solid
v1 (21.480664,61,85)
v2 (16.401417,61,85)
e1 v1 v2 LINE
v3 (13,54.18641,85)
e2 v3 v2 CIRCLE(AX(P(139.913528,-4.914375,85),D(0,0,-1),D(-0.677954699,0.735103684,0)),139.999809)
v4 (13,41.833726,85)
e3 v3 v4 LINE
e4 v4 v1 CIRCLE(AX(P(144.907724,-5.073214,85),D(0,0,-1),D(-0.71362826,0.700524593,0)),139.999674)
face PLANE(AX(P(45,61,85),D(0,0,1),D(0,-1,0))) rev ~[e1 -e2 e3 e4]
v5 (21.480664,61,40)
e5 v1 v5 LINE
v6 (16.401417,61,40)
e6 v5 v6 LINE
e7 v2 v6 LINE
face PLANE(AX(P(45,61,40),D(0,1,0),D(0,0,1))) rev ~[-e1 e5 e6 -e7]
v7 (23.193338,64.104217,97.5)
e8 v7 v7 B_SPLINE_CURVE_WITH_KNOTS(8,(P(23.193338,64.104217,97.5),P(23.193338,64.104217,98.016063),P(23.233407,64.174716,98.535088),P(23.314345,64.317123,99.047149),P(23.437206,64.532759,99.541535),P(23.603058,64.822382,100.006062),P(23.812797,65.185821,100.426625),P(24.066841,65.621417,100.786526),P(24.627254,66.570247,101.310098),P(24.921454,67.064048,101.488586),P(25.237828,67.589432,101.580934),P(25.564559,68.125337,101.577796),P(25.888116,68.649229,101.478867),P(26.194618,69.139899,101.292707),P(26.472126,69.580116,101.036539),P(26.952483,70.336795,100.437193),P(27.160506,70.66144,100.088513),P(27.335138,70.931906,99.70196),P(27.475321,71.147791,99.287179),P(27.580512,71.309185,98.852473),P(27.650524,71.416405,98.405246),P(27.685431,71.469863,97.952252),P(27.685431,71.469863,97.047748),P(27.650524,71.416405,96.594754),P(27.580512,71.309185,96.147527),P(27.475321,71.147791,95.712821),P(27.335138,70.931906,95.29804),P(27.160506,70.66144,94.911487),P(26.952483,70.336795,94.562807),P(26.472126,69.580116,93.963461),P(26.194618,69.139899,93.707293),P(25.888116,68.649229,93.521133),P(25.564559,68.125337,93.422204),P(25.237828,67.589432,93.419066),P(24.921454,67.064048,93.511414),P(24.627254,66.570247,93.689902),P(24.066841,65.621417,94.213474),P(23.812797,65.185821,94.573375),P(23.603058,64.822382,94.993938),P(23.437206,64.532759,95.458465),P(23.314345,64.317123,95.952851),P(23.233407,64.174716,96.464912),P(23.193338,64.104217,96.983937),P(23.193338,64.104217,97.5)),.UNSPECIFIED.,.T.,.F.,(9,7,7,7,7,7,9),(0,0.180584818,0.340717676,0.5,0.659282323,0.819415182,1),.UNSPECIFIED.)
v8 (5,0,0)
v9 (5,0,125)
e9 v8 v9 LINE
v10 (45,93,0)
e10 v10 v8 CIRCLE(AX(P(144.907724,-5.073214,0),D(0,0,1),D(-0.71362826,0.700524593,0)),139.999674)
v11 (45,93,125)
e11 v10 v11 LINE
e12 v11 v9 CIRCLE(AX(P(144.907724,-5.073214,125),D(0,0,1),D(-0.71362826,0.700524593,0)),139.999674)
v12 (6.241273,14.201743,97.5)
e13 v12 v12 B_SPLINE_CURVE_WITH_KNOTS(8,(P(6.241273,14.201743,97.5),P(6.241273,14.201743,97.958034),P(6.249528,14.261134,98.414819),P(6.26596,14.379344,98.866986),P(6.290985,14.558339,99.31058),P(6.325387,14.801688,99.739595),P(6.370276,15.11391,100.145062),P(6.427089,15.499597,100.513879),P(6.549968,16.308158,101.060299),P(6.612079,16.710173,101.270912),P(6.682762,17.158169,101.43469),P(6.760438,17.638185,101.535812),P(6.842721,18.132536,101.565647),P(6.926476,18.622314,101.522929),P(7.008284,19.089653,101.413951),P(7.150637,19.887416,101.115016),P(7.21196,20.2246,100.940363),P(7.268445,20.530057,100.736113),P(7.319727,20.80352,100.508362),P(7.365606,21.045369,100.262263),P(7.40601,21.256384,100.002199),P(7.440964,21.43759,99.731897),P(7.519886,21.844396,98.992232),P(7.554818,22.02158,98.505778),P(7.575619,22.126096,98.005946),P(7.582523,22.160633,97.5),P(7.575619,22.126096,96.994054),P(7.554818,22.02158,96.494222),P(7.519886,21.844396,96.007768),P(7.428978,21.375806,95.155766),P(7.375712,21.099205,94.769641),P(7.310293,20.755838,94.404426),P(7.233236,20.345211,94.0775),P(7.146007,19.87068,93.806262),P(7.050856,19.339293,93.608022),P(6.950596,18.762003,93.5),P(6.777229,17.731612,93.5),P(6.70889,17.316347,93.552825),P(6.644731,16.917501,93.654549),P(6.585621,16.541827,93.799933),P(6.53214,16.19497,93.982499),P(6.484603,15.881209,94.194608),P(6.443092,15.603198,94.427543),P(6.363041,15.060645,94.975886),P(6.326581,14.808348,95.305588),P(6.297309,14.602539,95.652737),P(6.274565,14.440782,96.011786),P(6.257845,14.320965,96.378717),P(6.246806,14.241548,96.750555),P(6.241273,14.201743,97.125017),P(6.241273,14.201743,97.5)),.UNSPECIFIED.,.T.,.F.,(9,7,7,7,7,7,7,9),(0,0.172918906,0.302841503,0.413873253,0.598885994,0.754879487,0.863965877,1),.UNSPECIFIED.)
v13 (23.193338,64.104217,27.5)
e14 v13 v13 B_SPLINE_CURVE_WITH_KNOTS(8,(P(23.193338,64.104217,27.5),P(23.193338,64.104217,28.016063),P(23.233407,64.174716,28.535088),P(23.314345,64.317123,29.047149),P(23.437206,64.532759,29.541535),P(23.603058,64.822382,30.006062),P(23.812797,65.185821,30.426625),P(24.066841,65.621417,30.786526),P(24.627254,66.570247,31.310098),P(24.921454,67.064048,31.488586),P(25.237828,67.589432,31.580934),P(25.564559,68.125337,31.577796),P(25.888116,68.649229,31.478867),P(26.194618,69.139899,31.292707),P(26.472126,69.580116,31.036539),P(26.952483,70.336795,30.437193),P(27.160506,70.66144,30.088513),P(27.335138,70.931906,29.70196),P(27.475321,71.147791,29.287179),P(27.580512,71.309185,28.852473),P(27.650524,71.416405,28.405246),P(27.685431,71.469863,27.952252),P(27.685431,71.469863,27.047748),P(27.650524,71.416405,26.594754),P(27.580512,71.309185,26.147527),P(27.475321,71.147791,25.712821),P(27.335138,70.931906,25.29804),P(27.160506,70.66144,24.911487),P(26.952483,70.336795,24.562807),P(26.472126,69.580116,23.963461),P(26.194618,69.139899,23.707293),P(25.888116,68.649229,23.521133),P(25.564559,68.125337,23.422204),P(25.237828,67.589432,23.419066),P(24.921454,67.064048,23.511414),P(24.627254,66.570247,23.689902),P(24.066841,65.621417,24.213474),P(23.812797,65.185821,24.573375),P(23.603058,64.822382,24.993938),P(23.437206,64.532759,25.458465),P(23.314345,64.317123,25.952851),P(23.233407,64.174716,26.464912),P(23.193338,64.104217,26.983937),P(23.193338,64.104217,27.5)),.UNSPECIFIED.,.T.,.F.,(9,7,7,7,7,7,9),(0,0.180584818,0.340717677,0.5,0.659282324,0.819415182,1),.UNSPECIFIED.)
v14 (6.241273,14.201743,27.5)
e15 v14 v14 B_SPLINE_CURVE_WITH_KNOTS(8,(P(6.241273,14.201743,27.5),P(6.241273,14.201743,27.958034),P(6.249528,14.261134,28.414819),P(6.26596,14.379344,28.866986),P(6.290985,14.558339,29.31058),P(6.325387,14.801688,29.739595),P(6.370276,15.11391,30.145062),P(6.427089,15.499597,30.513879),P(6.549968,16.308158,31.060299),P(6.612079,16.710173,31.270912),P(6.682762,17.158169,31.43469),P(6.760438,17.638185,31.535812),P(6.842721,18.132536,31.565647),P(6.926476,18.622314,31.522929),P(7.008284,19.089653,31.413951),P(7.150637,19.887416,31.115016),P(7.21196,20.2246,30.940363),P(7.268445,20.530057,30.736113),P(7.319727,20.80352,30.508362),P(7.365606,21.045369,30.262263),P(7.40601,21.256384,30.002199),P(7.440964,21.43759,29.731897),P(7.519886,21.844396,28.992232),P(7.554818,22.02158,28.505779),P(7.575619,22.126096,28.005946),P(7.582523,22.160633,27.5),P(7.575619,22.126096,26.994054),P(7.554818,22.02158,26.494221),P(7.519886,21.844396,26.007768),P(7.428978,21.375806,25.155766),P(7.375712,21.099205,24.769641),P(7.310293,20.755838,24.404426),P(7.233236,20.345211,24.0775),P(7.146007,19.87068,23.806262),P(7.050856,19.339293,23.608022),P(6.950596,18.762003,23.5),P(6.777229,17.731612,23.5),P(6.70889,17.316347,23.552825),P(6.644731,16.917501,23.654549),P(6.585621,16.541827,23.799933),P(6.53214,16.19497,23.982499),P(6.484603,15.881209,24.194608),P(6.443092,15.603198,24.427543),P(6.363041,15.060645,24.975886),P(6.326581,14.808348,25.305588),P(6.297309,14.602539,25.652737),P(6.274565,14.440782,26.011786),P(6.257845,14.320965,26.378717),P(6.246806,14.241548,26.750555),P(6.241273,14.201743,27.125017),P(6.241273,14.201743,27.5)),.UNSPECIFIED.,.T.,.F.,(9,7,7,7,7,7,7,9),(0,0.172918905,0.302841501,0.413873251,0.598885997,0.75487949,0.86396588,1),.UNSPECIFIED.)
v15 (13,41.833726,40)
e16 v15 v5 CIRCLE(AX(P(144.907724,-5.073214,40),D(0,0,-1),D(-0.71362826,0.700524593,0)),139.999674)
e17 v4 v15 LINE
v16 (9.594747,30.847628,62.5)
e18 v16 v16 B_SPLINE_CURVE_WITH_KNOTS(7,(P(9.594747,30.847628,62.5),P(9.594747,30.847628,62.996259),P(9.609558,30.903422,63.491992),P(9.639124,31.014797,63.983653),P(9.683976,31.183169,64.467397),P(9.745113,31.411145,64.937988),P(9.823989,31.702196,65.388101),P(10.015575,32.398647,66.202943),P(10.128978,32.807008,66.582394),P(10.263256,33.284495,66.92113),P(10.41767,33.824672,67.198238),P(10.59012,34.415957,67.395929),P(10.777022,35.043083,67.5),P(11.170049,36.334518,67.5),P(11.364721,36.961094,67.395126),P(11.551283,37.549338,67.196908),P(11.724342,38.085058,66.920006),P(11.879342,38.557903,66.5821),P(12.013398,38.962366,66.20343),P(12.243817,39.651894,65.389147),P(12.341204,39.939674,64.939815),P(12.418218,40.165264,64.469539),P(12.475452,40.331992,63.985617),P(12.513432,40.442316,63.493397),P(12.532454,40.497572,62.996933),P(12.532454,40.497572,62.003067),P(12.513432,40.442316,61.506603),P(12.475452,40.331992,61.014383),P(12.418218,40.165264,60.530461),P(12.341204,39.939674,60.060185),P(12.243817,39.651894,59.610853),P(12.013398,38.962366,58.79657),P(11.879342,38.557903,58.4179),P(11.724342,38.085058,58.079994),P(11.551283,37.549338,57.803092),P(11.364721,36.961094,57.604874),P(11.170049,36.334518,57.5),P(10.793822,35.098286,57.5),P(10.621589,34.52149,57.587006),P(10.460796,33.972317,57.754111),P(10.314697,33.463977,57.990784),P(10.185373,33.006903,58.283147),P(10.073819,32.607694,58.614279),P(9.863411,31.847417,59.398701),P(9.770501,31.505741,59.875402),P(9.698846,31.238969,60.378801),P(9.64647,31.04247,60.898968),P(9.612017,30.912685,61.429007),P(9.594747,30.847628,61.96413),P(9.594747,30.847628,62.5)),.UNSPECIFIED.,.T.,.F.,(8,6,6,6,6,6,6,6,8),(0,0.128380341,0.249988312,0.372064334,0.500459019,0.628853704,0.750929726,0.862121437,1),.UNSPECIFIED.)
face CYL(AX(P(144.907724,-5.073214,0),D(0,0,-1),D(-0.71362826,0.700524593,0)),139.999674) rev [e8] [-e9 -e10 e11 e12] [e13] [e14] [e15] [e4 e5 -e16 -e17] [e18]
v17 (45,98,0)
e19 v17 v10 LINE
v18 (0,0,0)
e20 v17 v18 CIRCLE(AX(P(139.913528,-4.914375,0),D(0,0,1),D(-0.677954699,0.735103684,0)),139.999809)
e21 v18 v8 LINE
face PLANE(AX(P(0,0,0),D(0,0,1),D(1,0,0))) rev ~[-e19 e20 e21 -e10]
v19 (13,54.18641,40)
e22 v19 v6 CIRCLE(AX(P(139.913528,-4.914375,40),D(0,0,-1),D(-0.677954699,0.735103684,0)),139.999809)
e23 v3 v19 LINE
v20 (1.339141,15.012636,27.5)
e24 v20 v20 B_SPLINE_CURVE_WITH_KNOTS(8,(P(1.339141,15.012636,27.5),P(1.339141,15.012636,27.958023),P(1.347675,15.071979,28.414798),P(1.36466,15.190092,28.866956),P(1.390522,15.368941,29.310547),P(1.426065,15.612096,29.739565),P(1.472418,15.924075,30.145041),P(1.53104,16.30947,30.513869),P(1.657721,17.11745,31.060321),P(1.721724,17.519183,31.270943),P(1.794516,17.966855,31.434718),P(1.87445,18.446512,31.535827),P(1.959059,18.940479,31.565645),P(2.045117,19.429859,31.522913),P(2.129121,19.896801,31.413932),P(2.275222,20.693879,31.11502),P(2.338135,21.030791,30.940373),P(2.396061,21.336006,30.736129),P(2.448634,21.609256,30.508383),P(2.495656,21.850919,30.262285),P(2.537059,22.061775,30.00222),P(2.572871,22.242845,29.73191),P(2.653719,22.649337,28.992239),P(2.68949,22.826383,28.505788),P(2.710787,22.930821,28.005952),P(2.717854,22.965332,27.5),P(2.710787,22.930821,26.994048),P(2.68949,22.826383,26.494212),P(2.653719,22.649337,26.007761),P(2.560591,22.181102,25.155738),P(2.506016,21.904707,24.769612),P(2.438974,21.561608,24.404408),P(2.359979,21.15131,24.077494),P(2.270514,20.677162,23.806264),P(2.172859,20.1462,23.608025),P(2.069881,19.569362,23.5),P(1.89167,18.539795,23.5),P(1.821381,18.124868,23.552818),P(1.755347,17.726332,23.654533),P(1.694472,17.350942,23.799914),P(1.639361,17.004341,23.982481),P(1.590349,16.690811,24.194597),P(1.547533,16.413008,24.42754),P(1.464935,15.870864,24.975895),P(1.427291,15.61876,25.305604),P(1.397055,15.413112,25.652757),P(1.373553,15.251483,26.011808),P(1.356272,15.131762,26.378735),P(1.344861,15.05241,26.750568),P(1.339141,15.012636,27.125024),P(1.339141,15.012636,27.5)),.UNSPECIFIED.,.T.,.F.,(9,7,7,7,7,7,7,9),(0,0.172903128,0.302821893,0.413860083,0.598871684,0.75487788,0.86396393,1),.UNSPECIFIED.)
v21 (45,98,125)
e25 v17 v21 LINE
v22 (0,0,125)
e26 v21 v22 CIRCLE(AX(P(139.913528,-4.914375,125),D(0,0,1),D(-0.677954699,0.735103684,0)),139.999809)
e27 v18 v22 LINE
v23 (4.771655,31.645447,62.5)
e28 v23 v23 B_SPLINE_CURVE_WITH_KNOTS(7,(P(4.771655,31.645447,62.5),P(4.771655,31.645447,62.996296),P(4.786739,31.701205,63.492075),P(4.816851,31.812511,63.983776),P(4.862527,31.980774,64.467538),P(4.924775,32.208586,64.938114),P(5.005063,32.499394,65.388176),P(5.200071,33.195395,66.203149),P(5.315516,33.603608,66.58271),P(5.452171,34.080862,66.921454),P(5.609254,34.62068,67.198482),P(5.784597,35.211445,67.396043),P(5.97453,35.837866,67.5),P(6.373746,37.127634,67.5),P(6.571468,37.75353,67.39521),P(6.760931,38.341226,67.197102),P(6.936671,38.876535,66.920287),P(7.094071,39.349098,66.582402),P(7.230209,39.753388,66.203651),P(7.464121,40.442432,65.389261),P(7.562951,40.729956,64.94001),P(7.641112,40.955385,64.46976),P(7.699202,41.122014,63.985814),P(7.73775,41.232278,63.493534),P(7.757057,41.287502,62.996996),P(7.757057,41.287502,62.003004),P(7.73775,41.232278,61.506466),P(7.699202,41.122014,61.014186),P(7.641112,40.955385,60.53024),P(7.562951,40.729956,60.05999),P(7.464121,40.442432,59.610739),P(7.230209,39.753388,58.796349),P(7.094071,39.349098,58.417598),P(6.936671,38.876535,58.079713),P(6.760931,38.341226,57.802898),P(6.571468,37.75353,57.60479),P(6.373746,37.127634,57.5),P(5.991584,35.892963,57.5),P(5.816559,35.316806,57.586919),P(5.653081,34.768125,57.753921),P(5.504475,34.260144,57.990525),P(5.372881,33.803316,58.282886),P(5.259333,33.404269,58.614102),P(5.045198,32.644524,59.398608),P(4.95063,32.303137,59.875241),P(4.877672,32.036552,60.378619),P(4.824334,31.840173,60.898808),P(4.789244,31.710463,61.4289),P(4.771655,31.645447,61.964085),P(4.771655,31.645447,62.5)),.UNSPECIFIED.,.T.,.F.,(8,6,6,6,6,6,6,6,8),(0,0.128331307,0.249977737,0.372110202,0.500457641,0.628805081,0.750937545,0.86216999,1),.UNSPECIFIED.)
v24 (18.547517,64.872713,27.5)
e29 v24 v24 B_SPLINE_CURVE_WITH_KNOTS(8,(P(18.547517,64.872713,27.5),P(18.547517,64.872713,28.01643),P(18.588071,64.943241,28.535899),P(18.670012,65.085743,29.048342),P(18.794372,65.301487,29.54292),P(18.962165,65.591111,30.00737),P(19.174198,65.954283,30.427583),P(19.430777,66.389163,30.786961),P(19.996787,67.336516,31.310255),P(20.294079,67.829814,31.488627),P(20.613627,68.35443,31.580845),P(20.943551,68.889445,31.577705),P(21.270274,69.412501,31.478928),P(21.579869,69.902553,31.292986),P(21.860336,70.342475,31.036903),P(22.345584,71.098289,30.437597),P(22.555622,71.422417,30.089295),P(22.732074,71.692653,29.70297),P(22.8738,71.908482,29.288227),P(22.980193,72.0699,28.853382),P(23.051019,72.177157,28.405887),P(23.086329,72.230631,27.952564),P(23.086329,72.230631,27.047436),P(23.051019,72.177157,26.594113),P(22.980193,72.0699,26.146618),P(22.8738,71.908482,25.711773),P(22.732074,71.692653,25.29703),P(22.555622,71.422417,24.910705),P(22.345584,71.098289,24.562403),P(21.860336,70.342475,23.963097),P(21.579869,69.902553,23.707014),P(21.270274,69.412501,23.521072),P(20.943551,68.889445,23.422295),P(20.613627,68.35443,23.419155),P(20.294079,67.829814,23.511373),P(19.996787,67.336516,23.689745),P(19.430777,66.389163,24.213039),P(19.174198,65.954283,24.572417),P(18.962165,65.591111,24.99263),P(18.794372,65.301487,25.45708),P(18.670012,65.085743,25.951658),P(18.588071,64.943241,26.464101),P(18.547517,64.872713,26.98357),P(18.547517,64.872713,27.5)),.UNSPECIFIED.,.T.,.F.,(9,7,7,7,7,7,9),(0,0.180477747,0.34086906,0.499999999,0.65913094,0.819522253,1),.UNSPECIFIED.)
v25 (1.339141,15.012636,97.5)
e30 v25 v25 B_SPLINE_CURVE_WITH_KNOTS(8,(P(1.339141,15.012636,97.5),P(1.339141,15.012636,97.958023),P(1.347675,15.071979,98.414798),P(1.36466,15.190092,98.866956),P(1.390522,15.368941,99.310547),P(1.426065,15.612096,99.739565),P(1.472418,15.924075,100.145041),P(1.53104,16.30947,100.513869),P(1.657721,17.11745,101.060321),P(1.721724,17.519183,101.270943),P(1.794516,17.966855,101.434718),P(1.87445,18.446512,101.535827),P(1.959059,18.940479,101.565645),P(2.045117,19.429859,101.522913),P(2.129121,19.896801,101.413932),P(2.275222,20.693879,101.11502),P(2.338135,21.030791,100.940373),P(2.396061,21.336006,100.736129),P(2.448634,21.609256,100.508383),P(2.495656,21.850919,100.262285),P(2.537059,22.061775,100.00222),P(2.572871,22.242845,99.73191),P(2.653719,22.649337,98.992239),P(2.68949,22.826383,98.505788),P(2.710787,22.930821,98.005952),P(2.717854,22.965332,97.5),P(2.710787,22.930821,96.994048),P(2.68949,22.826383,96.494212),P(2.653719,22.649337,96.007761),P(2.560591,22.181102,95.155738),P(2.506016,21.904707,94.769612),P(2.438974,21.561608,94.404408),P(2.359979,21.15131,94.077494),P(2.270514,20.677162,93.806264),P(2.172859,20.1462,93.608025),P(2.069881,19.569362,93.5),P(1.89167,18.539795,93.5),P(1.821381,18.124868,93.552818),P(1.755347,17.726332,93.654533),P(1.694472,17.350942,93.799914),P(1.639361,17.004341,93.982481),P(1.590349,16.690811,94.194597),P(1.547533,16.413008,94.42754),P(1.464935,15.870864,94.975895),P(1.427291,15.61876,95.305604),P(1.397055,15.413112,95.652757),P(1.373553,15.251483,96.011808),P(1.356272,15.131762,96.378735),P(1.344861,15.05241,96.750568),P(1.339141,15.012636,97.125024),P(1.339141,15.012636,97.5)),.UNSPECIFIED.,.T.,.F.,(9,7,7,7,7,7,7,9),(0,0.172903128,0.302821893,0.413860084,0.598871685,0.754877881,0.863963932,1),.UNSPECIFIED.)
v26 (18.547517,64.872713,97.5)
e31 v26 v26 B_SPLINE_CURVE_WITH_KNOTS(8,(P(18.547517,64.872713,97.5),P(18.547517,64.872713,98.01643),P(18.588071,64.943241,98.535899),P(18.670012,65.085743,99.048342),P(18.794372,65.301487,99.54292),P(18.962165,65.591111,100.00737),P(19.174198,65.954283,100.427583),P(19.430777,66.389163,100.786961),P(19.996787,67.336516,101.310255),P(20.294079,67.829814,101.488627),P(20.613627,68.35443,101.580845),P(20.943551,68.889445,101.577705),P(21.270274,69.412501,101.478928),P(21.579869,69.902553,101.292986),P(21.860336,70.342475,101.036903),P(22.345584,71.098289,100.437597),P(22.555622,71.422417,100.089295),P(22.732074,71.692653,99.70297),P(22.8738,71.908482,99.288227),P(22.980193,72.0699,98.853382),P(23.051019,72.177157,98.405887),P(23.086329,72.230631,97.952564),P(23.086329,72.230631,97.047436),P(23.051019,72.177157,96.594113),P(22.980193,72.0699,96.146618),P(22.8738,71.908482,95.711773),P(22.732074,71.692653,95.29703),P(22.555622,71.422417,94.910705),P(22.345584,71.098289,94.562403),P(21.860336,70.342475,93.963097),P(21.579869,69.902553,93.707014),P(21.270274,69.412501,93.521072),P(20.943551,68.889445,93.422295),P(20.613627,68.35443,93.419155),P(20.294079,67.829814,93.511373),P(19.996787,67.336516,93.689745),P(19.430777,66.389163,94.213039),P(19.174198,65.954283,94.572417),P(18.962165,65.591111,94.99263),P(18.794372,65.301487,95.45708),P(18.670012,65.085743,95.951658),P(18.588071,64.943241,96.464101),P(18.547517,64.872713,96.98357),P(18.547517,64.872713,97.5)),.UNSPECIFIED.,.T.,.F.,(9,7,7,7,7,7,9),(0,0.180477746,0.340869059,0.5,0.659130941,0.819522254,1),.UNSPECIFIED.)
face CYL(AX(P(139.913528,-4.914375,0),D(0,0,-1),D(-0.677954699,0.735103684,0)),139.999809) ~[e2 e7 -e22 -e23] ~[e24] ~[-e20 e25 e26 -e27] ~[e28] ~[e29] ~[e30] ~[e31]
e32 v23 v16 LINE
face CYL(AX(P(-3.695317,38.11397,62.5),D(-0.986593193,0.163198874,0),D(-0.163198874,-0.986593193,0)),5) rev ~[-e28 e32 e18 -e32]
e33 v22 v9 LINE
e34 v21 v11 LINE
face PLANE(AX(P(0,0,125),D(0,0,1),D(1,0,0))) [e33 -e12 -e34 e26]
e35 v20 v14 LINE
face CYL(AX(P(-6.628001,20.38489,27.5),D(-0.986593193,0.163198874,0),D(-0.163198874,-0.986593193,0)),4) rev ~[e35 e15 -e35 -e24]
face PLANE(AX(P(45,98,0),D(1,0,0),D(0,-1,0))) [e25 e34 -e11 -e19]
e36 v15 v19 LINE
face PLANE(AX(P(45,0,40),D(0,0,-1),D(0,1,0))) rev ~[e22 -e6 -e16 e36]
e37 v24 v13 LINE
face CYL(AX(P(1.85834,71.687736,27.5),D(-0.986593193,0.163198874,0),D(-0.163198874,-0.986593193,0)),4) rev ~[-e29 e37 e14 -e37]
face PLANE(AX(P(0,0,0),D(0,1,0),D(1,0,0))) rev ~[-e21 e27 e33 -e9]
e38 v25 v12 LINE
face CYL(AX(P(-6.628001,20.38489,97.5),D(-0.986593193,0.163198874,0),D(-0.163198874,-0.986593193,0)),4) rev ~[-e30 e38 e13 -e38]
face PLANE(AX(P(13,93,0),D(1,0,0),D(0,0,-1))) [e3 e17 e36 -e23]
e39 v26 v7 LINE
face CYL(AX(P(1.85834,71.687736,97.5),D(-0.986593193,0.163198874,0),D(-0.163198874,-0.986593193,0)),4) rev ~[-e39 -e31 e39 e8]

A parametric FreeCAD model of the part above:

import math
import FreeCAD as App
import Part
import Sketcher

V = App.Vector
Q = App.Units.Quantity

doc = App.newDocument("Part")
params = doc.addObject("Spreadsheet::Sheet", "Params")
for row, (alias, value) in enumerate([
    ("sketch1_radius", "140 mm"),
    ("sketch1_width", "5 mm"),
    ("pad1_length", "125 mm"),
    ("sketch2_diameter", "8 mm"),
    ("sketch3_diameter", "10 mm"),
    ("sketch4_height", "45 mm"),
    ("sketch4_width", "61 mm"),
    ("pocket3_length", "32 mm"),
], start=1):
    params.set(f"A{row}", alias)
    params.set(f"B{row}", "=" + value)
    params.setAlias(f"B{row}", alias)

body = doc.addObject("PartDesign::Body", "Body")

sketch1 = body.newObject("Sketcher::SketchObject", "Sketch")
sketch1.AttachmentSupport = (doc.getObject("XY_Plane"), [""])
sketch1.MapMode = "FlatFace"
sketch1.addGeometry([
    Part.LineSegment(V(45, 93, 0), V(45, 98, 0)),
    Part.ArcOfCircle(Part.Circle(V(139.9137, -4.9145, 0), V(0, 0, 1), 140.000017), math.radians(132.684039), math.radians(177.9883)),
    Part.LineSegment(V(0, 0, 0), V(5, 0, 0)),
    Part.ArcOfCircle(Part.Circle(V(144.908, -5.0734, 0), V(0, 0, 1), 140.000001), math.radians(135.530918), math.radians(177.923227)),
], False)
sketch1.addConstraint([
    Sketcher.Constraint("Coincident", 0, 2, 1, 1),
    Sketcher.Constraint("Coincident", 1, 2, 2, 1),
    Sketcher.Constraint("Coincident", 2, 2, 3, 2),
    Sketcher.Constraint("Coincident", 3, 1, 0, 1),
    Sketcher.Constraint("Vertical", 0),
    Sketcher.Constraint("Horizontal", 2),
    Sketcher.Constraint("Coincident", 1, 2, -1, 1),
    Sketcher.Constraint("Equal", 1, 3),
    Sketcher.Constraint("Equal", 2, 0),
    Sketcher.Constraint("Radius", 1, Q("140 mm")),
    Sketcher.Constraint("DistanceX", 2, 1, 2, 2, Q("5 mm")),
    Sketcher.Constraint("DistanceX", -1, 1, 0, 2, Q("45 mm")),
    Sketcher.Constraint("DistanceY", -1, 1, 0, 2, Q("98 mm")),
])
sketch1.setExpression("Constraints[9]", "Params.sketch1_radius")
sketch1.setExpression("Constraints[10]", "Params.sketch1_width")
pad1 = body.newObject("PartDesign::Pad", "Pad")
pad1.Profile = sketch1
pad1.setExpression("Length", "Params.pad1_length")

sketch2 = body.newObject("Sketcher::SketchObject", "Sketch001")
sketch2.Placement = App.Placement(V(-10, 0, 62.5), App.Rotation(V(-0.163198874, -0.986593193, 0), V(0, 0, 1.000000001), V(-0.986593193, 0.163198874, 0), "ZXY"))
sketch2.addGeometry([
    Part.Circle(V(-20.6619, -35, 0), V(0, 0, 1), 4),
    Part.Circle(V(-72.6619, -35, 0), V(0, 0, 1), 4),
    Part.Circle(V(-20.6619, 35, 0), V(0, 0, 1), 4),
    Part.Circle(V(-72.6619, 35, 0), V(0, 0, 1), 4),
], False)
sketch2.addConstraint([
    Sketcher.Constraint("Equal", 0, 1),
    Sketcher.Constraint("Equal", 1, 2),
    Sketcher.Constraint("Equal", 2, 3),
    Sketcher.Constraint("Symmetric", 0, 3, 2, 3, -1),
    Sketcher.Constraint("Symmetric", 1, 3, 3, 3, -1),
    Sketcher.Constraint("Horizontal", 0, 3, 1, 3),
    Sketcher.Constraint("Diameter", 0, Q("8 mm")),
    Sketcher.Constraint("DistanceX", 1, 3, 0, 3, Q("52 mm")),
    Sketcher.Constraint("DistanceY", 0, 3, 2, 3, Q("70 mm")),
    Sketcher.Constraint("DistanceX", 0, 3, -1, 1, Q("20.662 mm")),
])
sketch2.setExpression("Constraints[6]", "Params.sketch2_diameter")
pocket1 = body.newObject("PartDesign::Pocket", "Pocket")
pocket1.Profile = sketch2
pocket1.Type = "ThroughAll"

sketch3 = body.newObject("Sketcher::SketchObject", "Sketch002")
sketch3.Placement = App.Placement(V(-10, 0, 62.5), App.Rotation(V(-0.163198874, -0.986593193, 0), V(0, 0, 1.000000001), V(-0.986593193, 0.163198874, 0), "ZXY"))
sketch3.addGeometry(Part.Circle(V(-38.6319, 0, 0), V(0, 0, 1), 5), False)
sketch3.addConstraint([
    Sketcher.Constraint("PointOnObject", 0, 3, -1),
    Sketcher.Constraint("Diameter", 0, Q("10 mm")),
    Sketcher.Constraint("DistanceX", 0, 3, -1, 1, Q("38.632 mm")),
])
sketch3.setExpression("Constraints[1]", "Params.sketch3_diameter")
pocket2 = body.newObject("PartDesign::Pocket", "Pocket001")
pocket2.Profile = sketch3
pocket2.Type = "ThroughAll"

sketch4 = body.newObject("Sketcher::SketchObject", "Sketch003")
sketch4.AttachmentSupport = (doc.getObject("YZ_Plane"), [""])
sketch4.MapMode = "FlatFace"
sketch4.AttachmentOffset = App.Placement(V(0, 0, 45), App.Rotation())
sketch4.addGeometry([
    Part.LineSegment(V(0, 40, 0), V(61, 40, 0)),
    Part.LineSegment(V(61, 40, 0), V(61, 85, 0)),
    Part.LineSegment(V(61, 85, 0), V(0, 85, 0)),
    Part.LineSegment(V(0, 85, 0), V(0, 40, 0)),
], False)
sketch4.addConstraint([
    Sketcher.Constraint("Coincident", 0, 2, 1, 1),
    Sketcher.Constraint("Coincident", 1, 2, 2, 1),
    Sketcher.Constraint("Coincident", 2, 2, 3, 1),
    Sketcher.Constraint("Coincident", 3, 2, 0, 1),
    Sketcher.Constraint("Horizontal", 0),
    Sketcher.Constraint("Vertical", 1),
    Sketcher.Constraint("Horizontal", 2),
    Sketcher.Constraint("Vertical", 3),
    Sketcher.Constraint("PointOnObject", 2, 2, -2),
    Sketcher.Constraint("DistanceY", 1, 1, 1, 2, Q("45 mm")),
    Sketcher.Constraint("DistanceX", 0, 1, 0, 2, Q("61 mm")),
    Sketcher.Constraint("DistanceY", -1, 1, 0, 2, Q("40 mm")),
])
sketch4.setExpression("Constraints[9]", "Params.sketch4_height")
sketch4.setExpression("Constraints[10]", "Params.sketch4_width")
pocket3 = body.newObject("PartDesign::Pocket", "Pocket002")
pocket3.Profile = sketch4
pocket3.setExpression("Length", "Params.pocket3_length")

doc.recompute()
